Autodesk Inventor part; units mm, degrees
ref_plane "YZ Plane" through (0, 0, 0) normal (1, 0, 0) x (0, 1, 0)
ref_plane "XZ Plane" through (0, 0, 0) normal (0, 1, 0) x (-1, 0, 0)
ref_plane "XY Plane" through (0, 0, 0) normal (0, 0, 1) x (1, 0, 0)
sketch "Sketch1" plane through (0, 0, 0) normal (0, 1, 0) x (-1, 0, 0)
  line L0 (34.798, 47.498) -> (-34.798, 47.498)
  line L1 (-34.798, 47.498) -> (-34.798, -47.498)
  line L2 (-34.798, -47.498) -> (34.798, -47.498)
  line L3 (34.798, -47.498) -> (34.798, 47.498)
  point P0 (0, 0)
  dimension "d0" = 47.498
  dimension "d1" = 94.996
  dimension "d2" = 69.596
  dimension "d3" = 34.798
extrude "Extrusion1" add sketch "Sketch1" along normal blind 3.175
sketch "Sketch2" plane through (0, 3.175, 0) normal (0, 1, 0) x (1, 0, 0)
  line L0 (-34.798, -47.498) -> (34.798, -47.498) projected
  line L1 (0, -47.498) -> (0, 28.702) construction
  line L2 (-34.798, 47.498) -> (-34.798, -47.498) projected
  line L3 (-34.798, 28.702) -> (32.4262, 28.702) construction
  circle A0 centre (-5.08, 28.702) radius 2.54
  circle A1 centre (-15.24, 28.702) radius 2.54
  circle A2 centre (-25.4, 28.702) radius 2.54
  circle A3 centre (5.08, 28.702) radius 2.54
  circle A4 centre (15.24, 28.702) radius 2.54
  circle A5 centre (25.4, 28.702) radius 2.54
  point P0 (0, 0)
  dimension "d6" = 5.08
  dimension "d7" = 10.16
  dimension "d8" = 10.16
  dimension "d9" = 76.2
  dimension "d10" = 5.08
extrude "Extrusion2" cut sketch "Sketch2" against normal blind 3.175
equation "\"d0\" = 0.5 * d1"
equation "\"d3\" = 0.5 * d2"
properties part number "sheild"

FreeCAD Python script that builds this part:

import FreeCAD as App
import Part
import Sketcher
Q = App.Units.Quantity

doc = App.newDocument("Part")
params = doc.addObject("Spreadsheet::Sheet", "Params")
for row, (alias, value) in enumerate([
    ("sketch1_width", "2.74 in"),
    ("sketch1_height", "3.74 in"),
    ("pad1_length", "0.125 in"),
    ("sketch2_diameter", "0.2 in"),
    ("pocket1_length", "0.125 in"),
], start=1):
    params.set(f"A{row}", alias)
    params.set(f"B{row}", "=" + value)
    params.setAlias(f"B{row}", alias)

body = doc.addObject("PartDesign::Body", "Body")

sketch1 = body.newObject("Sketcher::SketchObject", "Sketch")
sketch1.AttachmentSupport = (doc.getObject("XZ_Plane"), [""])
sketch1.MapMode = "FlatFace"
sketch1.addGeometry([
    Part.LineSegment(App.Vector(-35, -47, 0), App.Vector(-35, 47, 0)),
    Part.LineSegment(App.Vector(-35, 47, 0), App.Vector(35, 47, 0)),
    Part.LineSegment(App.Vector(35, 47, 0), App.Vector(35, -47, 0)),
    Part.LineSegment(App.Vector(35, -47, 0), App.Vector(-35, -47, 0)),
], False)
sketch1.addConstraint([
    Sketcher.Constraint("Coincident", 0, 2, 1, 1),
    Sketcher.Constraint("Coincident", 1, 2, 2, 1),
    Sketcher.Constraint("Coincident", 2, 2, 3, 1),
    Sketcher.Constraint("Coincident", 3, 2, 0, 1),
    Sketcher.Constraint("Vertical", 0),
    Sketcher.Constraint("Horizontal", 1),
    Sketcher.Constraint("Vertical", 2),
    Sketcher.Constraint("Horizontal", 3),
    Sketcher.Constraint("Symmetric", 0, 2, 2, 2, -1, 1),
    Sketcher.Constraint("DistanceX", 1, 1, 1, 2, Q("2.74 in")),
    Sketcher.Constraint("DistanceY", 0, 1, 0, 2, Q("3.74 in")),
])
sketch1.setExpression("Constraints[9]", "Params.sketch1_width")
sketch1.setExpression("Constraints[10]", "Params.sketch1_height")
pad1 = body.newObject("PartDesign::Pad", "Pad")
pad1.Profile = sketch1
pad1.setExpression("Length", "Params.pad1_length")
pad1.Reversed = True

sketch2 = body.newObject("Sketcher::SketchObject", "Sketch001")
sketch2.AttachmentSupport = (doc.getObject("XZ_Plane"), [""])
sketch2.MapMode = "FlatFace"
sketch2.AttachmentOffset = App.Placement(App.Vector(0, 0, -0.125 * 25.4), App.Rotation())
sketch2.addGeometry([
    Part.Circle(App.Vector(-5.1, -28.7, 0), App.Vector(0, 0, 1), 2.5),
    Part.Circle(App.Vector(-15.2, -28.7, 0), App.Vector(0, 0, 1), 2.5),
    Part.Circle(App.Vector(-25.4, -28.7, 0), App.Vector(0, 0, 1), 2.5),
    Part.Circle(App.Vector(5.1, -28.7, 0), App.Vector(0, 0, 1), 2.5),
    Part.Circle(App.Vector(15.2, -28.7, 0), App.Vector(0, 0, 1), 2.5),
    Part.Circle(App.Vector(25.4, -28.7, 0), App.Vector(0, 0, 1), 2.5),
], False)
sketch2.addConstraint([
    Sketcher.Constraint("Equal", 0, 1),
    Sketcher.Constraint("Equal", 1, 2),
    Sketcher.Constraint("Equal", 2, 3),
    Sketcher.Constraint("Equal", 3, 4),
    Sketcher.Constraint("Equal", 4, 5),
    Sketcher.Constraint("Symmetric", 0, 3, 3, 3, -2),
    Sketcher.Constraint("Symmetric", 1, 3, 4, 3, -2),
    Sketcher.Constraint("Symmetric", 2, 3, 5, 3, -2),
    Sketcher.Constraint("Horizontal", 0, 3, 1, 3),
    Sketcher.Constraint("Horizontal", 1, 3, 2, 3),
    Sketcher.Constraint("Diameter", 0, Q("0.2 in")),
    Sketcher.Constraint("DistanceX", 0, 3, -1, 1, Q("0.2 in")),
    Sketcher.Constraint("DistanceX", 1, 3, 0, 3, Q("0.4 in")),
    Sketcher.Constraint("DistanceX", 2, 3, 1, 3, Q("0.4 in")),
    Sketcher.Constraint("DistanceY", 0, 3, -1, 1, Q("1.13 in")),
])
sketch2.setExpression("Constraints[10]", "Params.sketch2_diameter")
pocket1 = body.newObject("PartDesign::Pocket", "Pocket")
pocket1.Profile = sketch2
pocket1.setExpression("Length", "Params.pocket1_length")
pocket1.Reversed = True

doc.recompute()
